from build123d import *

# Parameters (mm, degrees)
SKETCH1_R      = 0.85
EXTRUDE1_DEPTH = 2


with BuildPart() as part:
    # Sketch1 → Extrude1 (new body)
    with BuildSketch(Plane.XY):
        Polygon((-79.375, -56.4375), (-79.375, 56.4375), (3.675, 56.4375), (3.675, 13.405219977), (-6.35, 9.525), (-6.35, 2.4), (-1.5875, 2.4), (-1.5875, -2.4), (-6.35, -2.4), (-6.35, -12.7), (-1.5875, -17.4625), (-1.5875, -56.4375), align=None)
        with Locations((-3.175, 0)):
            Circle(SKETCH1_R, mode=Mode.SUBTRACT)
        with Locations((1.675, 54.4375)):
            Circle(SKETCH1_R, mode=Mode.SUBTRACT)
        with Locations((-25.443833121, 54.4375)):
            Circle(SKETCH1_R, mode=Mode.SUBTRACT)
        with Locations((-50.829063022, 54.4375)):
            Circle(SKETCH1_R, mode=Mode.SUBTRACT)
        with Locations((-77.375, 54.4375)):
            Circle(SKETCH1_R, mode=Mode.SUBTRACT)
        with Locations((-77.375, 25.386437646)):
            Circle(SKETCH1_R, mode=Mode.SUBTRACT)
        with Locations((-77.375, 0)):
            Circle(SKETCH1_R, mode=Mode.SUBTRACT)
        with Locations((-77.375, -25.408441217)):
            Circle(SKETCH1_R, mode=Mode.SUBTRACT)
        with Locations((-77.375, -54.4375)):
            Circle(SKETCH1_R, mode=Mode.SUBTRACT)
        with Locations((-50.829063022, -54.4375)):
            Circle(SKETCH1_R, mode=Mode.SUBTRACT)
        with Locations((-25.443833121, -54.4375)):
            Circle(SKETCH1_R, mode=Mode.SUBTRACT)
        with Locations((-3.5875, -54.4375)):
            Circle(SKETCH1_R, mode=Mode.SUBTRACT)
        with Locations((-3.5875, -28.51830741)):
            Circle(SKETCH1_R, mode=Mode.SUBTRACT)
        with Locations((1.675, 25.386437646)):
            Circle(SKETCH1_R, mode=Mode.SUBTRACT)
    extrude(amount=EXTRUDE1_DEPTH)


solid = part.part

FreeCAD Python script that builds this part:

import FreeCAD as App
import Part
import Sketcher
Q = App.Units.Quantity


def add_polygon(sketch, points):
    """Adds a closed chain of lines whose ends are joined by coincident constraints."""
    first, n = sketch.GeometryCount, len(points)
    for a, b in zip(points, points[1:] + points[:1]):
        sketch.addGeometry(Part.LineSegment(App.Vector(*a, 0), App.Vector(*b, 0)), False)
    for i in range(n):
        sketch.addConstraint(Sketcher.Constraint("Coincident", first + i, 2, first + (i + 1) % n, 1))

doc = App.newDocument("Part")
body = doc.addObject("PartDesign::Body", "Body")

sketch1 = body.newObject("Sketcher::SketchObject", "Sketch")
sketch1.AttachmentSupport = (doc.getObject("XY_Plane"), [""])
sketch1.MapMode = "FlatFace"
add_polygon(sketch1, [(-79.4, 56.4), (-79.4, -56.4), (-1.6, -56.4), (-1.6, -17.5), (-6.3, -12.7), (-6.3, -2.4), (-1.6, -2.4), (-1.6, 2.4), (-6.3, 2.4), (-6.3, 9.5), (3.7, 13.4), (3.7, 56.4)])
sketch1.addGeometry(Part.Circle(App.Vector(-3.6, -54.4, 0), App.Vector(0, 0, 1), 0.8), False)
sketch1.addGeometry(Part.Circle(App.Vector(-3.6, -28.5, 0), App.Vector(0, 0, 1), 0.8), False)
sketch1.addGeometry(Part.Circle(App.Vector(-25.4, -54.4, 0), App.Vector(0, 0, 1), 0.8), False)
sketch1.addGeometry(Part.Circle(App.Vector(-3.2, 0, 0), App.Vector(0, 0, 1), 0.8), False)
sketch1.addGeometry(Part.Circle(App.Vector(-50.8, -54.4, 0), App.Vector(0, 0, 1), 0.8), False)
sketch1.addGeometry(Part.Circle(App.Vector(-77.4, -54.4, 0), App.Vector(0, 0, 1), 0.8), False)
sketch1.addGeometry(Part.Circle(App.Vector(-77.4, -25.4, 0), App.Vector(0, 0, 1), 0.8), False)
sketch1.addGeometry(Part.Circle(App.Vector(-77.4, 0, 0), App.Vector(0, 0, 1), 0.8), False)
sketch1.addGeometry(Part.Circle(App.Vector(1.7, 25.4, 0), App.Vector(0, 0, 1), 0.8), False)
sketch1.addGeometry(Part.Circle(App.Vector(1.7, 54.4, 0), App.Vector(0, 0, 1), 0.8), False)
sketch1.addGeometry(Part.Circle(App.Vector(-25.4, 54.4, 0), App.Vector(0, 0, 1), 0.8), False)
sketch1.addGeometry(Part.Circle(App.Vector(-77.4, 25.4, 0), App.Vector(0, 0, 1), 0.8), False)
sketch1.addGeometry(Part.Circle(App.Vector(-50.8, 54.4, 0), App.Vector(0, 0, 1), 0.8), False)
sketch1.addGeometry(Part.Circle(App.Vector(-77.4, 54.4, 0), App.Vector(0, 0, 1), 0.8), False)
sketch1.addConstraint([
    Sketcher.Constraint("Vertical", 0),
    Sketcher.Constraint("Horizontal", 1),
    Sketcher.Constraint("Vertical", 2),
    Sketcher.Constraint("Vertical", 4),
    Sketcher.Constraint("Horizontal", 5),
    Sketcher.Constraint("Vertical", 6),
    Sketcher.Constraint("Horizontal", 7),
    Sketcher.Constraint("Vertical", 8),
    Sketcher.Constraint("Vertical", 10),
    Sketcher.Constraint("Horizontal", 11),
    Sketcher.Constraint("Equal", 12, 13),
    Sketcher.Constraint("Equal", 13, 14),
    Sketcher.Constraint("Equal", 14, 15),
    Sketcher.Constraint("Equal", 15, 16),
    Sketcher.Constraint("Equal", 16, 17),
    Sketcher.Constraint("Equal", 17, 18),
    Sketcher.Constraint("Equal", 18, 19),
    Sketcher.Constraint("Equal", 19, 20),
    Sketcher.Constraint("Equal", 20, 21),
    Sketcher.Constraint("Equal", 21, 22),
    Sketcher.Constraint("Equal", 22, 23),
    Sketcher.Constraint("Equal", 23, 24),
    Sketcher.Constraint("Equal", 24, 25),
    Sketcher.Constraint("Symmetric", 14, 3, 22, 3, -1),
    Sketcher.Constraint("Symmetric", 16, 3, 24, 3, -1),
    Sketcher.Constraint("Symmetric", 17, 3, 25, 3, -1),
    Sketcher.Constraint("Symmetric", 4, 2, 7, 2, -1),
    Sketcher.Constraint("PointOnObject", 15, 3, -1),
    Sketcher.Constraint("PointOnObject", 19, 3, -1),
    Sketcher.Constraint("Horizontal", 12, 3, 14, 3),
    Sketcher.Constraint("Horizontal", 14, 3, 16, 3),
    Sketcher.Constraint("Horizontal", 16, 3, 17, 3),
    Sketcher.Constraint("Horizontal", 21, 3, 22, 3),
    Sketcher.Constraint("Horizontal", 20, 3, 23, 3),
    Sketcher.Constraint("Vertical", 12, 3, 13, 3),
    Sketcher.Constraint("Vertical", 17, 3, 18, 3),
    Sketcher.Constraint("Vertical", 18, 3, 19, 3),
    Sketcher.Constraint("Vertical", 20, 3, 21, 3),
    Sketcher.Constraint("Vertical", 19, 3, 23, 3),
    Sketcher.Constraint("Vertical", 2, 2, 5, 2),
    Sketcher.Constraint("Diameter", 12, 1.7),
    Sketcher.Constraint("Angle", 3, Q("135 deg")),
    Sketcher.Constraint("DistanceY", 4, 1, 4, 2, 10.3),
    Sketcher.Constraint("DistanceY", 6, 1, 6, 2, 4.8),
    Sketcher.Constraint("DistanceX", 0, 2, 17, 3, 2.0),
    Sketcher.Constraint("DistanceY", 0, 2, 17, 3, 2.0),
    Sketcher.Constraint("DistanceX", 12, 3, 1, 2, 2.0),
    Sketcher.Constraint("DistanceX", 20, 3, 9, 2, 2.0),
    Sketcher.Constraint("DistanceY", 21, 3, 10, 2, 2.0),
    Sketcher.Constraint("DistanceX", 11, 2, 11, 1, 83.05),
    Sketcher.Constraint("DistanceX", 17, 3, 15, 3, 74.2),
    Sketcher.Constraint("DistanceY", 0, 2, 0, 1, 112.875),
    Sketcher.Constraint("DistanceY", 2, 1, 2, 2, 38.975),
    Sketcher.Constraint("DistanceY", 8, 1, 8, 2, 7.125),
    Sketcher.Constraint("DistanceX", 3, 2, -1, 1, 6.35),
    Sketcher.Constraint("DistanceX", 1, 1, 1, 2, 77.7875),
    Sketcher.Constraint("DistanceY", 10, 1, 10, 2, 43.03228),
    Sketcher.Constraint("DistanceY", 18, 3, -1, 1, 25.408441),
    Sketcher.Constraint("DistanceX", 16, 3, 14, 3, 25.38523),
    Sketcher.Constraint("DistanceY", 18, 3, 23, 3, 50.794879),
    Sketcher.Constraint("DistanceY", 13, 3, -1, 1, 28.518307),
    Sketcher.Constraint("DistanceX", 14, 3, -1, 1, 25.443833),
])
pad1 = body.newObject("PartDesign::Pad", "Pad")
pad1.Profile = sketch1
pad1.Length = 2

doc.recompute()
